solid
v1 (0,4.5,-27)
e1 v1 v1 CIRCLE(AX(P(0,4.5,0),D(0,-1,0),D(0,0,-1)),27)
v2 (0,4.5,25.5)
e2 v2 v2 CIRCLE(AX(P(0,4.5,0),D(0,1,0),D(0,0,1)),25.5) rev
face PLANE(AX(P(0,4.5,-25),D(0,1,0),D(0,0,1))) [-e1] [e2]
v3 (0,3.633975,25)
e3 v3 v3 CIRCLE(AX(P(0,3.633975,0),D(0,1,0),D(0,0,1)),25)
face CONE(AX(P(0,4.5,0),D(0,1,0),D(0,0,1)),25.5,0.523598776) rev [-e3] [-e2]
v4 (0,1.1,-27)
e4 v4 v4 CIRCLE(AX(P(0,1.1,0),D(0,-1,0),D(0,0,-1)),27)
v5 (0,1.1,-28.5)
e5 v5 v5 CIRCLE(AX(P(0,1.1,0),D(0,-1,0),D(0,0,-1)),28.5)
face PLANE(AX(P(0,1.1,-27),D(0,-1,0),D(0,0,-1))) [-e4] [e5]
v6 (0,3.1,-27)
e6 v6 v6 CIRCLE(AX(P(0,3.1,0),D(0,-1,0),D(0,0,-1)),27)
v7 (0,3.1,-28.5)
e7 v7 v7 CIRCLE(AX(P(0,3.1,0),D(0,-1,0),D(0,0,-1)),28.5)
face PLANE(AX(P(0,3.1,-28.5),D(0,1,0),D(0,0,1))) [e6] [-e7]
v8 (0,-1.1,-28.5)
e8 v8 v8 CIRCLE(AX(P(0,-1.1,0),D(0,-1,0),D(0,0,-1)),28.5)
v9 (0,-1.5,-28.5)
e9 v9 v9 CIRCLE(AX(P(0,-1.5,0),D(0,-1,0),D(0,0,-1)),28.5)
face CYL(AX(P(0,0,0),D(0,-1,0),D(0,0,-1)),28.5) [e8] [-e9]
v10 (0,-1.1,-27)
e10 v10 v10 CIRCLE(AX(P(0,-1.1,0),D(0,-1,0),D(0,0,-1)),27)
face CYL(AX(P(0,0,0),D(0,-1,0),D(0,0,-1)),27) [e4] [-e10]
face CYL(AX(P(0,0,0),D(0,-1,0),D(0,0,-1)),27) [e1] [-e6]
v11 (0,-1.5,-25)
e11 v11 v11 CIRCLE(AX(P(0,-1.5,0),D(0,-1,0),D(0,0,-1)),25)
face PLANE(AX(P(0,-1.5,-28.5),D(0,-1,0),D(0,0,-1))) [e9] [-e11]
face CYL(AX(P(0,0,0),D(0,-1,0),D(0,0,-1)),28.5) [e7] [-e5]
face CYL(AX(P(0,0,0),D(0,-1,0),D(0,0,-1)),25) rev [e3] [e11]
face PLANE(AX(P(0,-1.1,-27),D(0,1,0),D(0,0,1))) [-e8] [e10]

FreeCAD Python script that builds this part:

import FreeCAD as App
import Part
import Sketcher


def edges_at(feature, points):
    """Names of the edges that pass closest to the given points."""
    edges = feature.Shape.Edges
    near = lambda p: min(range(len(edges)), key=lambda i: edges[i].distToShape(Part.Vertex(*p))[0])
    return sorted({f"Edge{near(p) + 1}" for p in points})


def add_polygon(sketch, points):
    """Adds a closed chain of lines whose ends are joined by coincident constraints."""
    first, n = sketch.GeometryCount, len(points)
    for a, b in zip(points, points[1:] + points[:1]):
        sketch.addGeometry(Part.LineSegment(App.Vector(*a, 0), App.Vector(*b, 0)), False)
    for i in range(n):
        sketch.addConstraint(Sketcher.Constraint("Coincident", first + i, 2, first + (i + 1) % n, 1))

doc = App.newDocument("Part")
params = doc.addObject("Spreadsheet::Sheet", "Params")
for row, (alias, value) in enumerate([
    ("sketch1_width", "2 mm"),
    ("sketch1_width2", "6 mm"),
    ("sketch1_width3", "1.4 mm"),
    ("sketch1_width4", "0.4 mm"),
    ("sketch1_height", "1.5 mm"),
    ("revolution_angle", "360 deg"),
    ("chamfer_size", "0.5 mm"),
    ("chamfer_size2", "0.866025 mm"),
], start=1):
    params.set(f"A{row}", alias)
    params.set(f"B{row}", "=" + value)
    params.setAlias(f"B{row}", alias)

body = doc.addObject("PartDesign::Body", "Body")

sketch1 = body.newObject("Sketcher::SketchObject", "Sketch")
sketch1.AttachmentSupport = (doc.getObject("YZ_Plane"), [""])
sketch1.MapMode = "FlatFace"
add_polygon(sketch1, [(1.1, -27), (1.1, -28.5), (3.1, -28.5), (3.1, -27), (4.5, -27), (4.5, -25), (-1.5, -25), (-1.5, -28.5), (-1.1, -28.5), (-1.1, -27)])
sketch1.addConstraint([
    Sketcher.Constraint("Vertical", 0),
    Sketcher.Constraint("Horizontal", 1),
    Sketcher.Constraint("Vertical", 2),
    Sketcher.Constraint("Horizontal", 3),
    Sketcher.Constraint("Vertical", 4),
    Sketcher.Constraint("Horizontal", 5),
    Sketcher.Constraint("Vertical", 6),
    Sketcher.Constraint("Horizontal", 7),
    Sketcher.Constraint("Vertical", 8),
    Sketcher.Constraint("Horizontal", 9),
    Sketcher.Constraint("Symmetric", 0, 2, 7, 2, -2),
    Sketcher.Constraint("Horizontal", 3, 2, 8, 2),
    Sketcher.Constraint("Equal", 1, 4),
    Sketcher.Constraint("DistanceX", 1, 1, 1, 2, 2.0),
    Sketcher.Constraint("DistanceX", 5, 2, 5, 1, 6.0),
    Sketcher.Constraint("DistanceX", 3, 1, 3, 2, 1.4),
    Sketcher.Constraint("DistanceX", 7, 1, 7, 2, 0.4),
    Sketcher.Constraint("DistanceY", 0, 2, 0, 1, 1.5),
    Sketcher.Constraint("DistanceY", 2, 2, -1, 1, 27.0),
])
sketch1.setExpression("Constraints[23]", "Params.sketch1_width")
sketch1.setExpression("Constraints[24]", "Params.sketch1_width2")
sketch1.setExpression("Constraints[25]", "Params.sketch1_width3")
sketch1.setExpression("Constraints[26]", "Params.sketch1_width4")
sketch1.setExpression("Constraints[27]", "Params.sketch1_height")
revolution = body.newObject("PartDesign::Revolution", "Revolution")
revolution.Profile = sketch1
revolution.ReferenceAxis = (sketch1, ["H_Axis"])
revolution.setExpression("Angle", "Params.revolution_angle")
doc.recompute()

chamfer = body.newObject("PartDesign::Chamfer", "Chamfer")
chamfer.Base = (revolution, edges_at(revolution, [(0, 4.5, 25)]))
chamfer.ChamferType = "Two distances"
chamfer.setExpression("Size", "Params.chamfer_size")
chamfer.setExpression("Size2", "Params.chamfer_size2")

doc.recompute()
